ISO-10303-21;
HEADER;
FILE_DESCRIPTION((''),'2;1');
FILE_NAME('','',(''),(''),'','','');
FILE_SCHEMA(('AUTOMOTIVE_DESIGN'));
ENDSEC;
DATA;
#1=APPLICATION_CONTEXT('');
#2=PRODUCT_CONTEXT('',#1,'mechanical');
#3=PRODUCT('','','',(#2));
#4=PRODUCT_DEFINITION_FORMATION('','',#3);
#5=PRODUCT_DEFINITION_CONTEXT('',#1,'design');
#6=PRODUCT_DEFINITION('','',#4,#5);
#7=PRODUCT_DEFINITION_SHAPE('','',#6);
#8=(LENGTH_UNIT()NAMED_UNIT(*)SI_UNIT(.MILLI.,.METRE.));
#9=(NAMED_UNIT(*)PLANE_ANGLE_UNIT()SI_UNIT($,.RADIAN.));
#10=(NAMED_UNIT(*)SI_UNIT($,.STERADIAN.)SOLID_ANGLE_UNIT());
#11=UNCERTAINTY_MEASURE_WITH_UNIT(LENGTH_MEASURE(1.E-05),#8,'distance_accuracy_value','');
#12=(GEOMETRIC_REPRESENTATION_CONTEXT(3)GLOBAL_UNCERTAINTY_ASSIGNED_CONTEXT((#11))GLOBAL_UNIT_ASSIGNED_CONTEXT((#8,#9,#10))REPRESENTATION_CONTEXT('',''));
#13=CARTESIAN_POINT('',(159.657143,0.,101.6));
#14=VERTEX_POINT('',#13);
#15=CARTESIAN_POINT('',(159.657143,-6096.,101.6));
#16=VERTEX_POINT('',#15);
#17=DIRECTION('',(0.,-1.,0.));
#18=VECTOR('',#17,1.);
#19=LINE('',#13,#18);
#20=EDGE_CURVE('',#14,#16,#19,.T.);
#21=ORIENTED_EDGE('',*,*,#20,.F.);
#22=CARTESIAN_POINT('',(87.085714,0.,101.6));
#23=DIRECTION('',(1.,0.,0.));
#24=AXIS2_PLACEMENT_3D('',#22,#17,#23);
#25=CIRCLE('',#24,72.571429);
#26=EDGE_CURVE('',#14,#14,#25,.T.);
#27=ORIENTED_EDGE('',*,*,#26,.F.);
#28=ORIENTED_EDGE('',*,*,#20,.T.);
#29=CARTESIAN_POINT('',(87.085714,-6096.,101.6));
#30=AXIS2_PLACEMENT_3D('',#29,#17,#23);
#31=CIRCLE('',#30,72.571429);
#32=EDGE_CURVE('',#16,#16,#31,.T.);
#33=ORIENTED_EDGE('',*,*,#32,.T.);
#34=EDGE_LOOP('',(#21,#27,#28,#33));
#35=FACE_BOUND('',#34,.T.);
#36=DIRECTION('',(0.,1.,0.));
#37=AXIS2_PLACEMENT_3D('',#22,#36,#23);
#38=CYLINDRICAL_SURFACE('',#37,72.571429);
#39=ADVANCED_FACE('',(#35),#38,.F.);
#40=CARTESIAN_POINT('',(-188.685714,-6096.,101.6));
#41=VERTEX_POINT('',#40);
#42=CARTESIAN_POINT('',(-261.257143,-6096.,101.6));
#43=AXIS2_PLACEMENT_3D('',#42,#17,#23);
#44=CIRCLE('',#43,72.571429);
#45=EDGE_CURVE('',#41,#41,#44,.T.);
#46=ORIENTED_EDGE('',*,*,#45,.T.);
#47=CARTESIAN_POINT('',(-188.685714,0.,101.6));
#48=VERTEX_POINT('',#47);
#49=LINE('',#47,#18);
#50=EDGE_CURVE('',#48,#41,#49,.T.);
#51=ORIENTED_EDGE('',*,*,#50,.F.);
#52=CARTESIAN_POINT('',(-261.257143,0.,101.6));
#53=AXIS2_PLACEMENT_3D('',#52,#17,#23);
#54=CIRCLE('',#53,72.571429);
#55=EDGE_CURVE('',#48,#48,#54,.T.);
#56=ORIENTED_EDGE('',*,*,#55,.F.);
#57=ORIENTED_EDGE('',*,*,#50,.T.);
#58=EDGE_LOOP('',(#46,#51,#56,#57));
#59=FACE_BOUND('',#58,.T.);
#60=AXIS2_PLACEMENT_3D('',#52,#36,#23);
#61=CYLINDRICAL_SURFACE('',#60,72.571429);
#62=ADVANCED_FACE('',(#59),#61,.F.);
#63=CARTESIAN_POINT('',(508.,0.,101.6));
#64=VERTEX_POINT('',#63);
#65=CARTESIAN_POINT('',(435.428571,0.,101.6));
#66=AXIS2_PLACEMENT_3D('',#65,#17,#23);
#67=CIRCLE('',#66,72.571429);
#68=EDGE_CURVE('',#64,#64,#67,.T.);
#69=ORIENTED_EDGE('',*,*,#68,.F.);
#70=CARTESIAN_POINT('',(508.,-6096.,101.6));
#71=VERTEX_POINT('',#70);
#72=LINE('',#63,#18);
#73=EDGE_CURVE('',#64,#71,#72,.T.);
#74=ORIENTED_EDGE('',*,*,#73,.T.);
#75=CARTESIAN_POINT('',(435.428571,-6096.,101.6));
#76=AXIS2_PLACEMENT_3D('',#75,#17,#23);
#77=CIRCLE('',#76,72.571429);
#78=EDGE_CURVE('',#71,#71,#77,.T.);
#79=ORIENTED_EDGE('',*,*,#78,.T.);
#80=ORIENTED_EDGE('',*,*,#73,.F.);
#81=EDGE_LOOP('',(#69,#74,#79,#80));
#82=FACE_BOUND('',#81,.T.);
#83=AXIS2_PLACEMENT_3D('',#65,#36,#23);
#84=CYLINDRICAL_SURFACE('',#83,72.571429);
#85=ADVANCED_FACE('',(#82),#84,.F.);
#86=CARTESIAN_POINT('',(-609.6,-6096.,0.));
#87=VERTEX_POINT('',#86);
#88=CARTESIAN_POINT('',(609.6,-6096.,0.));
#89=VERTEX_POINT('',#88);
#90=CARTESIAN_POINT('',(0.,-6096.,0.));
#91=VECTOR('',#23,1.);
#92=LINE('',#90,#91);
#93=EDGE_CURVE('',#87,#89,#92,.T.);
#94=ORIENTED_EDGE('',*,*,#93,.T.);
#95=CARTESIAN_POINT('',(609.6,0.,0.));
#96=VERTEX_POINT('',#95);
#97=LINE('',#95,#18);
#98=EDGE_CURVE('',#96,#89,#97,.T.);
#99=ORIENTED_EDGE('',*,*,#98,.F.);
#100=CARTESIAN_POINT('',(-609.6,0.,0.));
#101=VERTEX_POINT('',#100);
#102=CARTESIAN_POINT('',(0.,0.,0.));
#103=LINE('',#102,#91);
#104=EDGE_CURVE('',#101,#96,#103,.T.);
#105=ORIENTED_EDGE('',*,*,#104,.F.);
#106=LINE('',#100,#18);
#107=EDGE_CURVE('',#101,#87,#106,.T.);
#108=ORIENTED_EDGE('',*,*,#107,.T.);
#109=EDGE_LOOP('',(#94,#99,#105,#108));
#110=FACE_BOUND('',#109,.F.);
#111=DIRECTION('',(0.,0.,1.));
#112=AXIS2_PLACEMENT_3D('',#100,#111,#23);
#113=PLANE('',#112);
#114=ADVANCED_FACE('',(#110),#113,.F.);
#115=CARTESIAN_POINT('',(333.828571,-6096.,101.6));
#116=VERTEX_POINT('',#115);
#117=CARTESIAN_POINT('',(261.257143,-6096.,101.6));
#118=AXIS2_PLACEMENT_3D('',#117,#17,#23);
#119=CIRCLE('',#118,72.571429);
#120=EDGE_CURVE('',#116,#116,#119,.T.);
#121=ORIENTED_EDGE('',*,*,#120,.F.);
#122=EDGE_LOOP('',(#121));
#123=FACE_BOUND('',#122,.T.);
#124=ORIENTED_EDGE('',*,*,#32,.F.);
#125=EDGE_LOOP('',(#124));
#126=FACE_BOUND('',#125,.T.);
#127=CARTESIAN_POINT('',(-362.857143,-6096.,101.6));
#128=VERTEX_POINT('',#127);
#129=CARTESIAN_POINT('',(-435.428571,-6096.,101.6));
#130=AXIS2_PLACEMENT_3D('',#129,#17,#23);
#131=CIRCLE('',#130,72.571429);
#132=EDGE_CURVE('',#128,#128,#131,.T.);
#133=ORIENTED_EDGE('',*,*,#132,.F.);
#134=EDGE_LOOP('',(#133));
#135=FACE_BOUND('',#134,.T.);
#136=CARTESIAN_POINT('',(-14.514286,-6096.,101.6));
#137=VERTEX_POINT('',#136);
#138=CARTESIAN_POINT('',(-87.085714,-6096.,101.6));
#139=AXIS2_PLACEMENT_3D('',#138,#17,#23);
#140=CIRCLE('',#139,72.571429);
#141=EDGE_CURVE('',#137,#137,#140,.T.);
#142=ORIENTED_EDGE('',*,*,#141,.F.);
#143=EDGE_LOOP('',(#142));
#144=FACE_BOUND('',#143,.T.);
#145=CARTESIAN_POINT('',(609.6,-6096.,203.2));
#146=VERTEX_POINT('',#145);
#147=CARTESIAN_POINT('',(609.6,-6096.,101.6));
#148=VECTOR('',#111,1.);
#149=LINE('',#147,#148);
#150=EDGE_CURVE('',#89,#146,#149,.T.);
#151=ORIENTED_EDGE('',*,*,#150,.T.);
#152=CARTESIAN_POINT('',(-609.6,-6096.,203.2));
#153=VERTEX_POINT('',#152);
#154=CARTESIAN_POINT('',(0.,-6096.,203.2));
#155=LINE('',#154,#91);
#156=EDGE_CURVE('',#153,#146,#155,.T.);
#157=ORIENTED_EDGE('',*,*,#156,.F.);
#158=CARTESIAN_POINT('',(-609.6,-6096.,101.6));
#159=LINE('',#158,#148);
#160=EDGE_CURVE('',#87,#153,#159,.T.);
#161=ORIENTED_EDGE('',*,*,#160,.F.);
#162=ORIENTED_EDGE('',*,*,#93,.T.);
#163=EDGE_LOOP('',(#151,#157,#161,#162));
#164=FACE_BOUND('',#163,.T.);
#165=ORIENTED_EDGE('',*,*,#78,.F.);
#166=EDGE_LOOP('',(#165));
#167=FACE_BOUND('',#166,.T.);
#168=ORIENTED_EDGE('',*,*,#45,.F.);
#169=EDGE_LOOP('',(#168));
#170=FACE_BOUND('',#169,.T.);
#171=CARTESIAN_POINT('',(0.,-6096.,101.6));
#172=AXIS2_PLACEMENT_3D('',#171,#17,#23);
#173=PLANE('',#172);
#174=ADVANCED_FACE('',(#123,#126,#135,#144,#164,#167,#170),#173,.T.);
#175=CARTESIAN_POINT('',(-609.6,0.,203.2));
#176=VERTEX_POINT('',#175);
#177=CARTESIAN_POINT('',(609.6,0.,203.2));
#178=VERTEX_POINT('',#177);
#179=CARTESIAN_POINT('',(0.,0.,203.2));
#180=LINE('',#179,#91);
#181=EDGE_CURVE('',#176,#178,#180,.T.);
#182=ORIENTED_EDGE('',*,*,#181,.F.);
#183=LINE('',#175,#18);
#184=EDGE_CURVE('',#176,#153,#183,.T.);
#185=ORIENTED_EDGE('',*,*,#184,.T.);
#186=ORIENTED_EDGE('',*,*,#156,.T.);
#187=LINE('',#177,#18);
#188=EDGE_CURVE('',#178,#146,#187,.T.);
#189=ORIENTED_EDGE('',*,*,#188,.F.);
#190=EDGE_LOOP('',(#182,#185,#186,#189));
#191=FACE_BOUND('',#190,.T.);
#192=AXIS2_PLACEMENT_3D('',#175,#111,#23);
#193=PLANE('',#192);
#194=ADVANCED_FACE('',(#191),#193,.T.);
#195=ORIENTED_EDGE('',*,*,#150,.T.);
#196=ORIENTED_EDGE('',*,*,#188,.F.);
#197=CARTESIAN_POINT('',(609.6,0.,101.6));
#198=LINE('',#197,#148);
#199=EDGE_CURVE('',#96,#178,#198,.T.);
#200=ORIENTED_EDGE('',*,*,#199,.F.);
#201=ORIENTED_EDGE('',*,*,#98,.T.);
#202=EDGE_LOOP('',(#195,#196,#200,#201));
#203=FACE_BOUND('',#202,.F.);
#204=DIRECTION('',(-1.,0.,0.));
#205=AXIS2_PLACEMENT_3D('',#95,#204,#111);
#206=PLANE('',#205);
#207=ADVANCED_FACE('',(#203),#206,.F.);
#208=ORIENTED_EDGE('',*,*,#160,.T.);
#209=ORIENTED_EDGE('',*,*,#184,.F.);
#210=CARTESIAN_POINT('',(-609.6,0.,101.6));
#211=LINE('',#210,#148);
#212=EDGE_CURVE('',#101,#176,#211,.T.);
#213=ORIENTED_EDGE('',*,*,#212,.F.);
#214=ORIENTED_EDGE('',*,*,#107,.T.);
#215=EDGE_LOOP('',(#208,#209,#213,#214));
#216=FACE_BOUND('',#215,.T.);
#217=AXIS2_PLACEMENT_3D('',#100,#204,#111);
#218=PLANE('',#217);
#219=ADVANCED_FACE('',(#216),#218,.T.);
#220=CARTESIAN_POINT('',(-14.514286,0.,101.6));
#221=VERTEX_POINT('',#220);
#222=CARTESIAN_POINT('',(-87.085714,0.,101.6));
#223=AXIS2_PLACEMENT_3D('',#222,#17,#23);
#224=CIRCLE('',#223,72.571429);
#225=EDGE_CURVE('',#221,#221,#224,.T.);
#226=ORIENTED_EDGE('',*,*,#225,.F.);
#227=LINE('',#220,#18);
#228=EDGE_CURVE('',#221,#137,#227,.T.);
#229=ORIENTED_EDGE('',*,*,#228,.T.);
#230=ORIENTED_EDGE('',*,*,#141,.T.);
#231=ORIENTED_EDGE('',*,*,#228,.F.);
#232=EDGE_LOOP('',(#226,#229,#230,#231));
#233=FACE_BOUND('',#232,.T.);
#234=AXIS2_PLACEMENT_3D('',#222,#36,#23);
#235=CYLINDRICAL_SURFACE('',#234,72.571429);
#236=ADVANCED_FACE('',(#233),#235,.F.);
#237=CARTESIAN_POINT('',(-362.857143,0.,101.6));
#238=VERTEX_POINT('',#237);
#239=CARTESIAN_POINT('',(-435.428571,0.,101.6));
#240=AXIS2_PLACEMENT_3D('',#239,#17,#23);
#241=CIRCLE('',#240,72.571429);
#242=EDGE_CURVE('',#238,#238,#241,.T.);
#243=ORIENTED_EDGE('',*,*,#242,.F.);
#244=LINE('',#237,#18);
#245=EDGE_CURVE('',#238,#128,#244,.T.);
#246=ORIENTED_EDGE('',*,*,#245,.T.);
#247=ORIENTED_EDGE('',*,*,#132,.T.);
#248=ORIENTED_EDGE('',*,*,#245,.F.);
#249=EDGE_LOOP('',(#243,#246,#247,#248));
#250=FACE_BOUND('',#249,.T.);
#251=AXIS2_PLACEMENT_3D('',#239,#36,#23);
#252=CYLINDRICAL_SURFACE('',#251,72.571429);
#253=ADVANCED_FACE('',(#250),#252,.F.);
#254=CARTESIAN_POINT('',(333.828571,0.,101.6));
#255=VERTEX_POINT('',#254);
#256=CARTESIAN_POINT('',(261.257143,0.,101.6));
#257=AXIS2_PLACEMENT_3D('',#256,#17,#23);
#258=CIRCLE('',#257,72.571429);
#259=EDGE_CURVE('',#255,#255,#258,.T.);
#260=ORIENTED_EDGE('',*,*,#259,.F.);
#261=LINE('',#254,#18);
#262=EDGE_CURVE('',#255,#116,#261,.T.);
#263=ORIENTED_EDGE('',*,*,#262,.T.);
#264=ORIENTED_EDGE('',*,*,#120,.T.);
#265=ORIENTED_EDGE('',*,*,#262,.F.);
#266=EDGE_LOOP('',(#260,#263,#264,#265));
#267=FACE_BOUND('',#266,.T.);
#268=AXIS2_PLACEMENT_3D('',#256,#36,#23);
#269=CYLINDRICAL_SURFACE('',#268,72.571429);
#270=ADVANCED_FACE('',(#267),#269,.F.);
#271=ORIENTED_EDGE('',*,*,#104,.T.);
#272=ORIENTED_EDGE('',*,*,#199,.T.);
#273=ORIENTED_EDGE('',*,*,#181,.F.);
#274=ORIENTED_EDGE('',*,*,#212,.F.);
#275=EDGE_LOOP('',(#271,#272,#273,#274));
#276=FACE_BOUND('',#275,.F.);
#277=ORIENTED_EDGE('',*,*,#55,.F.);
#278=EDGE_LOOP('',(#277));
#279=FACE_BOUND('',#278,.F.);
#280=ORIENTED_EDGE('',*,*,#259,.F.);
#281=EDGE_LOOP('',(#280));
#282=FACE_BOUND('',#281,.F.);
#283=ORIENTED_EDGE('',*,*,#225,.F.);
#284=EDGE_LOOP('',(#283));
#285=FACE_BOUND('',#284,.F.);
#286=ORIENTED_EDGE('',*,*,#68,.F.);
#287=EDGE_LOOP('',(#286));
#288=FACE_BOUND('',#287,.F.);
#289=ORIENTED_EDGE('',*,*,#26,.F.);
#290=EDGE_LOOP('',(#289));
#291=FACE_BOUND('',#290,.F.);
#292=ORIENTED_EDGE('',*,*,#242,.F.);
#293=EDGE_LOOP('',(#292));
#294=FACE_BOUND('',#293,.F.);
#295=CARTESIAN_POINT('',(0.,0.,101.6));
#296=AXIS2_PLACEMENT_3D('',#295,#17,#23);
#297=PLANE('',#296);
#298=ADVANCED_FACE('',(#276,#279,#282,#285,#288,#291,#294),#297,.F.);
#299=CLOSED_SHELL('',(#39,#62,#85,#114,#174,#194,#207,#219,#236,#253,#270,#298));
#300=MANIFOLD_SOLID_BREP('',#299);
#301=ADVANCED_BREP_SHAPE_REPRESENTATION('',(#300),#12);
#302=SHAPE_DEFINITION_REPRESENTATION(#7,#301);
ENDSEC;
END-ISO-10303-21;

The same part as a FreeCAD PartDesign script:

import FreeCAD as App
import Part
import Sketcher
from FreeCAD import Vector
Q = App.Units.Quantity


def add_polygon(sketch, points):
    """Adds a closed chain of lines whose ends are joined by coincident constraints."""
    first, n = sketch.GeometryCount, len(points)
    for a, b in zip(points, points[1:] + points[:1]):
        sketch.addGeometry(Part.LineSegment(App.Vector(*a, 0), App.Vector(*b, 0)), False)
    for i in range(n):
        sketch.addConstraint(Sketcher.Constraint("Coincident", first + i, 2, first + (i + 1) % n, 1))

doc = App.newDocument("Part")
body = doc.addObject("PartDesign::Body", "Body")

sketch1 = body.newObject("Sketcher::SketchObject", "Sketch")
sketch1.AttachmentSupport = (doc.getObject("XZ_Plane"), [""])
sketch1.MapMode = "FlatFace"
add_polygon(sketch1, [(-610, 203), (-610, 0), (610, 0), (610, 203)])
sketch1.addGeometry(Part.Circle(Vector(-435, 102, 0), Vector(0, 0, 1), 73), False)
sketch1.addGeometry(Part.Circle(Vector(-261, 102, 0), Vector(0, 0, 1), 73), False)
sketch1.addGeometry(Part.Circle(Vector(-87, 102, 0), Vector(0, 0, 1), 73), False)
sketch1.addGeometry(Part.Circle(Vector(87, 102, 0), Vector(0, 0, 1), 73), False)
sketch1.addGeometry(Part.Circle(Vector(261, 102, 0), Vector(0, 0, 1), 73), False)
sketch1.addGeometry(Part.Circle(Vector(435, 102, 0), Vector(0, 0, 1), 73), False)
sketch1.addConstraint([
    Sketcher.Constraint("Vertical", 0),
    Sketcher.Constraint("Horizontal", 1),
    Sketcher.Constraint("Vertical", 2),
    Sketcher.Constraint("Horizontal", 3),
    Sketcher.Constraint("Equal", 4, 5),
    Sketcher.Constraint("Equal", 5, 6),
    Sketcher.Constraint("Equal", 6, 7),
    Sketcher.Constraint("Equal", 7, 8),
    Sketcher.Constraint("Equal", 8, 9),
    Sketcher.Constraint("Symmetric", 0, 2, 1, 2, -1, 1),
    Sketcher.Constraint("Symmetric", 6, 3, 7, 3, -2),
    Sketcher.Constraint("Symmetric", 5, 3, 8, 3, -2),
    Sketcher.Constraint("Symmetric", 4, 3, 9, 3, -2),
    Sketcher.Constraint("Horizontal", 4, 3, 5, 3),
    Sketcher.Constraint("Horizontal", 5, 3, 6, 3),
    Sketcher.Constraint("DistanceX", 1, 1, 1, 2, Q("48 in")),
    Sketcher.Constraint("DistanceY", 0, 2, 0, 1, Q("8 in")),
    Sketcher.Constraint("DistanceY", -1, 1, 4, 3, Q("4 in")),
    Sketcher.Constraint("Diameter", 4, 145.142857),
    Sketcher.Constraint("DistanceX", 4, 3, -1, 1, 435.428571),
    Sketcher.Constraint("DistanceX", 4, 3, 5, 3, 174.171429),
    Sketcher.Constraint("DistanceX", 5, 3, 6, 3, 174.171429),
])
pad1 = body.newObject("PartDesign::Pad", "Pad")
pad1.Profile = sketch1
pad1.Length = Q("240 in")

doc.recompute()
